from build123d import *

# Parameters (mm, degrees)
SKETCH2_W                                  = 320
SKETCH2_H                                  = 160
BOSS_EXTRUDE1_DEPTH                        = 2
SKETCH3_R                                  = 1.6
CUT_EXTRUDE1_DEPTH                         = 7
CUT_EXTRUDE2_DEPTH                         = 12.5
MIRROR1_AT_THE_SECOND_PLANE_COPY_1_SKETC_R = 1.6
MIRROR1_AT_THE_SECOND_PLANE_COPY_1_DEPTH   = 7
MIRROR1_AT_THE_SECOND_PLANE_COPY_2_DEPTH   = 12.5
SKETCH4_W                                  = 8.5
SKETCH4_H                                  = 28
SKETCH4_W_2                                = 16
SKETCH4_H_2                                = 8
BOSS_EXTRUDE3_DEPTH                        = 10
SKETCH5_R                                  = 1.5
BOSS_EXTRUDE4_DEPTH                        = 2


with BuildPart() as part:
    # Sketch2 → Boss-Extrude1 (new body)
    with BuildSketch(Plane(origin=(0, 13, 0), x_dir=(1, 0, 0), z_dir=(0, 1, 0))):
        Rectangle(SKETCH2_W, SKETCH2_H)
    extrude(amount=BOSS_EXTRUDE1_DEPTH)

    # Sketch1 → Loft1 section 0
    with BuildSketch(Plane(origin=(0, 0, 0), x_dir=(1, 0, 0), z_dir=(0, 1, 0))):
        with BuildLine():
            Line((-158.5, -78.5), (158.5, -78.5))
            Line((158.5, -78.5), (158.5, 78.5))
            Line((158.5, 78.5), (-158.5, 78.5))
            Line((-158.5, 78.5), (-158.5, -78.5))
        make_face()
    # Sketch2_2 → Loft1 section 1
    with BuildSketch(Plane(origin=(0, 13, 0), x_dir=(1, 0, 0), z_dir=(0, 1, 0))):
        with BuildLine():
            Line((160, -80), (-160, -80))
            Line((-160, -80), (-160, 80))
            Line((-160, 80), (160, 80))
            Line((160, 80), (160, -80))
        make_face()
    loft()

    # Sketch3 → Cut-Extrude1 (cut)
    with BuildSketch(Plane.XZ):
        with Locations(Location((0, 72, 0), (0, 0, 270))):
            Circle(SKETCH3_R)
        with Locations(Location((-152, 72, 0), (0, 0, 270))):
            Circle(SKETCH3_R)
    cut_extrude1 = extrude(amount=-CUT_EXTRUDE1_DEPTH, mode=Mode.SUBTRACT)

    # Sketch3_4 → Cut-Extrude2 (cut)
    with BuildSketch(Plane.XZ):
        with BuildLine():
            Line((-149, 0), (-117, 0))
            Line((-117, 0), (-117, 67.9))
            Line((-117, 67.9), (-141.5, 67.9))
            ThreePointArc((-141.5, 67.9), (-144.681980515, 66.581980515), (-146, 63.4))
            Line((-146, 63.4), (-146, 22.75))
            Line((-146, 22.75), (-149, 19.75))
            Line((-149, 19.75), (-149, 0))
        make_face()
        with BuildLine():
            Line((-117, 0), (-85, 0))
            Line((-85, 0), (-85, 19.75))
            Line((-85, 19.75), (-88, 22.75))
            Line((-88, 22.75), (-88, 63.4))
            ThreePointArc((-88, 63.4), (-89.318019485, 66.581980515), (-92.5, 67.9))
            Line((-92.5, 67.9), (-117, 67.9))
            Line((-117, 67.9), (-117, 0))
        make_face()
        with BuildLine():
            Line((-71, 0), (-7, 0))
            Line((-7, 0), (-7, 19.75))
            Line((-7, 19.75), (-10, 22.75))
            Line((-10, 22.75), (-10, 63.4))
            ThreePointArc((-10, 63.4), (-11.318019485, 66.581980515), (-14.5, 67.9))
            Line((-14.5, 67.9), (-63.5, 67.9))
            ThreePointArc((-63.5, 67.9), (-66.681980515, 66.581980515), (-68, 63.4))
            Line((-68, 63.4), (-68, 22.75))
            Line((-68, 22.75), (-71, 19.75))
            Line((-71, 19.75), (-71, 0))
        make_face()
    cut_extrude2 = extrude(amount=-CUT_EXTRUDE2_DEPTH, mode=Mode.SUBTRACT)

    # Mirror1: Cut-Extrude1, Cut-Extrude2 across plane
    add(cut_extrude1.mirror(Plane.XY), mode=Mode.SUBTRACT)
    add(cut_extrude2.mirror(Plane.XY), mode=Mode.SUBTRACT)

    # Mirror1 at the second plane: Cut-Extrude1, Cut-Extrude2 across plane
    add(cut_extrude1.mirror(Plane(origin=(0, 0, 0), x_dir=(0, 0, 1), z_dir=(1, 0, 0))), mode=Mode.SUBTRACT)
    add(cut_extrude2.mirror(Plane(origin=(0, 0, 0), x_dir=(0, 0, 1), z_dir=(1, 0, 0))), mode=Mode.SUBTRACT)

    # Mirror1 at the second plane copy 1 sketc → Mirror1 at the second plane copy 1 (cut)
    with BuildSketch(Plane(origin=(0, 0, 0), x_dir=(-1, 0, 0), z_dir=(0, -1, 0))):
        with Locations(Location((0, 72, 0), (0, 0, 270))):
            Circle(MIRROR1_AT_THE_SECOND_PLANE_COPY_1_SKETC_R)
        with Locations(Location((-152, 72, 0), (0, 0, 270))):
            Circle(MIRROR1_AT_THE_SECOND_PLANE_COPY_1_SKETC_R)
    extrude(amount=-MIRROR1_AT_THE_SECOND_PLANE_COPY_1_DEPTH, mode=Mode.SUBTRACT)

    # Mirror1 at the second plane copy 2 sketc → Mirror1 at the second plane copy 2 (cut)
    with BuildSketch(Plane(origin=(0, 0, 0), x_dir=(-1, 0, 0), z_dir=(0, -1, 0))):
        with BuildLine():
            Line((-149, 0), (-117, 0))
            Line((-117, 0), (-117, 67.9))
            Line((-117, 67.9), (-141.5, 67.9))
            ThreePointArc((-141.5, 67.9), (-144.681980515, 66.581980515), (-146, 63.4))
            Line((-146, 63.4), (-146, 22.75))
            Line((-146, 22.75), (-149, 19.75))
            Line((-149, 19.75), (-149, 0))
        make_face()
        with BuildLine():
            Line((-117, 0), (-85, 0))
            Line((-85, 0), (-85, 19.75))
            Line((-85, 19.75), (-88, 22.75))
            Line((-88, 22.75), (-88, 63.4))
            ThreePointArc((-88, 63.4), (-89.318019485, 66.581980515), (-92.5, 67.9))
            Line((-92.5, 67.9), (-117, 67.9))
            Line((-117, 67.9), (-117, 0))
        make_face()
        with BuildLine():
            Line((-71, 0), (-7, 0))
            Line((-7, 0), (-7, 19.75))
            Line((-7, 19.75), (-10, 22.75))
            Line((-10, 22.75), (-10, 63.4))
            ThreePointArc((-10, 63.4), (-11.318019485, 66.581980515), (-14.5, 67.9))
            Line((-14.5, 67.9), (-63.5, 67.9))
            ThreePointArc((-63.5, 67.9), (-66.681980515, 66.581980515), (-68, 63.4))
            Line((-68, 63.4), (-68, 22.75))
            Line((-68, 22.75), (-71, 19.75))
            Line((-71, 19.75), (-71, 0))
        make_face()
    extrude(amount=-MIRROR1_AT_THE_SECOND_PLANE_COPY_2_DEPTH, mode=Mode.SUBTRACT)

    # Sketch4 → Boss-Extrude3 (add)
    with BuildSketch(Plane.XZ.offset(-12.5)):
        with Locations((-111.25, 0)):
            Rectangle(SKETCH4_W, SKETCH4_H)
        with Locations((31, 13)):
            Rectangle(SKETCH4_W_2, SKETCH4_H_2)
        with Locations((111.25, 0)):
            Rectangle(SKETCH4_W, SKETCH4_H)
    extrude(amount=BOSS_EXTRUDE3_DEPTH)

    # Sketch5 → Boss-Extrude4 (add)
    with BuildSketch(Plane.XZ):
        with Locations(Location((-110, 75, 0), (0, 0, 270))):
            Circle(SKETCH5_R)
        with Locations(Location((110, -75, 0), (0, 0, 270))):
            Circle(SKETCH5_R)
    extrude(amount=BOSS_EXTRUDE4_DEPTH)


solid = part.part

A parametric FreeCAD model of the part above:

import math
import FreeCAD as App
import Part
import Sketcher

V = App.Vector


def add_polygon(sketch, points):
    """Adds a closed chain of lines whose ends are joined by coincident constraints."""
    first, n = sketch.GeometryCount, len(points)
    for a, b in zip(points, points[1:] + points[:1]):
        sketch.addGeometry(Part.LineSegment(App.Vector(*a, 0), App.Vector(*b, 0)), False)
    for i in range(n):
        sketch.addConstraint(Sketcher.Constraint("Coincident", first + i, 2, first + (i + 1) % n, 1))

doc = App.newDocument("Part")
body = doc.addObject("PartDesign::Body", "Body")

# Sketch on XZ plane
sketch1 = doc.addObject("Sketcher::SketchObject", "Sketch")
body.addObject(sketch1)
sketch1.AttachmentSupport = (doc.XZ_Plane, [""])
sketch1.MapMode = "FlatFace"
sketch1.AttachmentOffset = App.Placement(V(0, 0, -13), App.Rotation())
add_polygon(sketch1, [(-160, -80), (-160, 80), (160, 80), (160, -80)])  # lines 0-3
sketch1.addConstraint([
    Sketcher.Constraint("Vertical", 0),
    Sketcher.Constraint("Horizontal", 1),
    Sketcher.Constraint("Vertical", 2),
    Sketcher.Constraint("Horizontal", 3),
    Sketcher.Constraint("Symmetric", 0, 2, 2, 2, -1, 1),
    Sketcher.Constraint("DistanceX", 1, 1, 1, 2, 320.0),
    Sketcher.Constraint("DistanceY", 0, 1, 0, 2, 160.0),
])
pad1 = doc.addObject("PartDesign::Pad", "Pad")
body.addObject(pad1)
pad1.Profile = sketch1
pad1.Length = 2
pad1.Reversed = True

# Sketch on XZ plane
sketch2 = doc.addObject("Sketcher::SketchObject", "Sketch001")
body.addObject(sketch2)
sketch2.AttachmentSupport = (doc.XZ_Plane, [""])
sketch2.MapMode = "FlatFace"
add_polygon(sketch2, [(-158, 78), (158, 78), (158, -78), (-158, -78)])  # lines 0-3
sketch2.addConstraint([
    Sketcher.Constraint("Horizontal", 0),
    Sketcher.Constraint("Vertical", 1),
    Sketcher.Constraint("Horizontal", 2),
    Sketcher.Constraint("Vertical", 3),
    Sketcher.Constraint("Symmetric", 0, 2, 2, 2, -1, 1),
    Sketcher.Constraint("DistanceX", 0, 1, 0, 2, 317.0),
    Sketcher.Constraint("DistanceY", 1, 2, 1, 1, 157.0),
])

# Sketch on XZ plane
sketch3 = doc.addObject("Sketcher::SketchObject", "Sketch002")
body.addObject(sketch3)
sketch3.AttachmentSupport = (doc.XZ_Plane, [""])
sketch3.MapMode = "FlatFace"
sketch3.AttachmentOffset = App.Placement(V(0, 0, -13), App.Rotation())
add_polygon(sketch3, [(-160, 80), (160, 80), (160, -80), (-160, -80)])  # lines 0-3
sketch3.addConstraint([
    Sketcher.Constraint("Horizontal", 0),
    Sketcher.Constraint("Vertical", 1),
    Sketcher.Constraint("Horizontal", 2),
    Sketcher.Constraint("Vertical", 3),
    Sketcher.Constraint("Symmetric", 0, 2, 2, 2, -1, 1),
    Sketcher.Constraint("DistanceX", 0, 1, 0, 2, 320.0),
    Sketcher.Constraint("DistanceY", 1, 2, 1, 1, 160.0),
])

additiveloft = doc.addObject("PartDesign::AdditiveLoft", "AdditiveLoft")
body.addObject(additiveloft)
additiveloft.Profile = sketch2
additiveloft.Sections = [sketch3]

# Sketch on XZ plane
sketch4 = doc.addObject("Sketcher::SketchObject", "Sketch003")
body.addObject(sketch4)
sketch4.AttachmentSupport = (doc.XZ_Plane, [""])
sketch4.MapMode = "FlatFace"
sketch4.addGeometry([
    Part.Circle(V(0, 72, 0), V(0, 0, 1), 1.6),
    Part.Circle(V(-152, 72, 0), V(0, 0, 1), 1.6),
], False)
sketch4.addConstraint([
    Sketcher.Constraint("Equal", 0, 1),
    Sketcher.Constraint("PointOnObject", 0, 3, -2),
    Sketcher.Constraint("Horizontal", 0, 3, 1, 3),
    Sketcher.Constraint("Diameter", 0, 3.2),
    Sketcher.Constraint("DistanceY", -1, 1, 0, 3, 72.0),
    Sketcher.Constraint("DistanceX", 1, 3, -1, 1, 152.0),
])
pocket1 = doc.addObject("PartDesign::Pocket", "Pocket")
body.addObject(pocket1)
pocket1.Profile = sketch4
pocket1.Length = 7

# Sketch on XZ plane
sketch5 = doc.addObject("Sketcher::SketchObject", "Sketch004")
body.addObject(sketch5)
sketch5.AttachmentSupport = (doc.XZ_Plane, [""])
sketch5.MapMode = "FlatFace"
sketch5.addGeometry([
    Part.LineSegment(V(-149, 0, 0), V(-85, 0, 0)),  # 0
    Part.LineSegment(V(-85, 0, 0), V(-85, 19.8, 0)),  # 1
    Part.LineSegment(V(-85, 19.8, 0), V(-88, 22.8, 0)),  # 2
    Part.LineSegment(V(-88, 22.8, 0), V(-88, 63.4, 0)),  # 3
    Part.ArcOfCircle(Part.Circle(V(-92.5, 63.4, 0), V(0, 0, 1), 4.5), math.radians(0), math.radians(90)),  # 4
    Part.LineSegment(V(-92.5, 67.9, 0), V(-141.5, 67.9, 0)),  # 5
    Part.ArcOfCircle(Part.Circle(V(-141.5, 63.4, 0), V(0, 0, 1), 4.5), math.radians(90), math.radians(180)),  # 6
    Part.LineSegment(V(-146, 63.4, 0), V(-146, 22.8, 0)),  # 7
    Part.LineSegment(V(-146, 22.8, 0), V(-149, 19.8, 0)),  # 8
    Part.LineSegment(V(-149, 19.8, 0), V(-149, 0, 0)),  # 9
    Part.LineSegment(V(-71, 0, 0), V(-7, 0, 0)),  # 10
    Part.LineSegment(V(-7, 0, 0), V(-7, 19.8, 0)),  # 11
    Part.LineSegment(V(-7, 19.8, 0), V(-10, 22.8, 0)),  # 12
    Part.LineSegment(V(-10, 22.8, 0), V(-10, 63.4, 0)),  # 13
    Part.ArcOfCircle(Part.Circle(V(-14.5, 63.4, 0), V(0, 0, 1), 4.5), math.radians(0), math.radians(90)),  # 14
    Part.LineSegment(V(-14.5, 67.9, 0), V(-63.5, 67.9, 0)),  # 15
    Part.ArcOfCircle(Part.Circle(V(-63.5, 63.4, 0), V(0, 0, 1), 4.5), math.radians(90), math.radians(180)),  # 16
    Part.LineSegment(V(-68, 63.4, 0), V(-68, 22.8, 0)),  # 17
    Part.LineSegment(V(-68, 22.8, 0), V(-71, 19.8, 0)),  # 18
    Part.LineSegment(V(-71, 19.8, 0), V(-71, 0, 0)),  # 19
], False)
sketch5.addConstraint([
    Sketcher.Constraint("Coincident", 0, 2, 1, 1),
    Sketcher.Constraint("Coincident", 1, 2, 2, 1),
    Sketcher.Constraint("Coincident", 2, 2, 3, 1),
    Sketcher.Constraint("Tangent", 3, 2, 4, 1),
    Sketcher.Constraint("Tangent", 4, 2, 5, 1),
    Sketcher.Constraint("Tangent", 5, 2, 6, 1),
    Sketcher.Constraint("Tangent", 6, 2, 7, 1),
    Sketcher.Constraint("Coincident", 7, 2, 8, 1),
    Sketcher.Constraint("Coincident", 8, 2, 9, 1),
    Sketcher.Constraint("Coincident", 9, 2, 0, 1),
    Sketcher.Constraint("Coincident", 10, 2, 11, 1),
    Sketcher.Constraint("Coincident", 11, 2, 12, 1),
    Sketcher.Constraint("Coincident", 12, 2, 13, 1),
    Sketcher.Constraint("Tangent", 13, 2, 14, 1),
    Sketcher.Constraint("Tangent", 14, 2, 15, 1),
    Sketcher.Constraint("Tangent", 15, 2, 16, 1),
    Sketcher.Constraint("Tangent", 16, 2, 17, 1),
    Sketcher.Constraint("Coincident", 17, 2, 18, 1),
    Sketcher.Constraint("Coincident", 18, 2, 19, 1),
    Sketcher.Constraint("Coincident", 19, 2, 10, 1),
    Sketcher.Constraint("Horizontal", 0),
    Sketcher.Constraint("Vertical", 1),
    Sketcher.Constraint("Vertical", 3),
    Sketcher.Constraint("Horizontal", 5),
    Sketcher.Constraint("Vertical", 7),
    Sketcher.Constraint("Vertical", 9),
    Sketcher.Constraint("Horizontal", 10),
    Sketcher.Constraint("Vertical", 11),
    Sketcher.Constraint("Vertical", 13),
    Sketcher.Constraint("Horizontal", 15),
    Sketcher.Constraint("Vertical", 17),
    Sketcher.Constraint("Vertical", 19),
    Sketcher.Constraint("Equal", 4, 6),
    Sketcher.Constraint("Equal", 6, 14),
    Sketcher.Constraint("Equal", 14, 16),
    Sketcher.Constraint("PointOnObject", 0, 2, -1),
    Sketcher.Constraint("PointOnObject", 10, 2, -1),
    Sketcher.Constraint("Perpendicular", 2, 8),
    Sketcher.Constraint("Perpendicular", 8, 12),
    Sketcher.Constraint("Perpendicular", 12, 18),
    Sketcher.Constraint("Horizontal", 6, 3, 14, 3),
    Sketcher.Constraint("Horizontal", 2, 2, 7, 2),
    Sketcher.Constraint("Horizontal", 1, 2, 8, 2),
    Sketcher.Constraint("Horizontal", 8, 2, 11, 2),
    Sketcher.Constraint("Horizontal", 7, 2, 12, 2),
    Sketcher.Constraint("Horizontal", 12, 2, 17, 2),
    Sketcher.Constraint("Horizontal", 11, 2, 18, 2),
    Sketcher.Constraint("Equal", 0, 10),
    Sketcher.Constraint("Equal", 2, 8),
    Sketcher.Constraint("Radius", 4, 4.5),
    Sketcher.Constraint("DistanceX", 0, 1, 0, 2, 64.0),
    Sketcher.Constraint("DistanceX", 5, 2, 5, 1, 49.0),
    Sketcher.Constraint("DistanceX", 0, 2, -1, 1, 85.0),
    Sketcher.Constraint("DistanceX", 10, 2, -1, 1, 7.0),
    Sketcher.Constraint("DistanceY", 1, 1, 1, 2, 19.75),
    Sketcher.Constraint("DistanceY", 3, 1, 3, 2, 40.65),
])
pocket2 = doc.addObject("PartDesign::Pocket", "Pocket001")
body.addObject(pocket2)
pocket2.Profile = sketch5
pocket2.Length = 12.5
doc.recompute()

mirrored = doc.addObject("PartDesign::Mirrored", "Mirrored")
body.addObject(mirrored)
mirrored.Originals = [pocket1, pocket2]
mirrored.MirrorPlane = (doc.XY_Plane, [""])
body.Tip = mirrored
doc.recompute()

mirrored2 = doc.addObject("PartDesign::Mirrored", "Mirrored001")
body.addObject(mirrored2)
mirrored2.Originals = [pocket1, pocket2]
mirrored2.MirrorPlane = (doc.YZ_Plane, [""])
body.Tip = mirrored2

# Sketch on XZ plane
sketch6 = doc.addObject("Sketcher::SketchObject", "Sketch005")
body.addObject(sketch6)
sketch6.AttachmentSupport = (doc.XZ_Plane, [""])
sketch6.MapMode = "FlatFace"
sketch6.addGeometry([
    Part.Circle(V(0, -72, 0), V(0, 0, 1), 1.6),
    Part.Circle(V(152, -72, 0), V(0, 0, 1), 1.6),
], False)
sketch6.addConstraint([
    Sketcher.Constraint("Equal", 0, 1),
    Sketcher.Constraint("PointOnObject", 0, 3, -2),
    Sketcher.Constraint("Horizontal", 0, 3, 1, 3),
    Sketcher.Constraint("Diameter", 0, 3.2),
    Sketcher.Constraint("DistanceY", 0, 3, -1, 1, 72.0),
    Sketcher.Constraint("DistanceX", -1, 1, 1, 3, 152.0),
])
pocket3 = doc.addObject("PartDesign::Pocket", "Pocket002")
body.addObject(pocket3)
pocket3.Profile = sketch6
pocket3.Length = 7

# Sketch on XZ plane
sketch7 = doc.addObject("Sketcher::SketchObject", "Sketch006")
body.addObject(sketch7)
sketch7.AttachmentSupport = (doc.XZ_Plane, [""])
sketch7.MapMode = "FlatFace"
sketch7.addGeometry([
    Part.LineSegment(V(149, 0, 0), V(85, 0, 0)),  # 0
    Part.LineSegment(V(85, 0, 0), V(85, -19.8, 0)),  # 1
    Part.LineSegment(V(85, -19.8, 0), V(88, -22.8, 0)),  # 2
    Part.LineSegment(V(88, -22.8, 0), V(88, -63.4, 0)),  # 3
    Part.ArcOfCircle(Part.Circle(V(92.5, -63.4, 0), V(0, 0, 1), 4.5), math.radians(-180), math.radians(-90)),  # 4
    Part.LineSegment(V(92.5, -67.9, 0), V(141.5, -67.9, 0)),  # 5
    Part.ArcOfCircle(Part.Circle(V(141.5, -63.4, 0), V(0, 0, 1), 4.5), math.radians(-90), math.radians(0)),  # 6
    Part.LineSegment(V(146, -63.4, 0), V(146, -22.8, 0)),  # 7
    Part.LineSegment(V(146, -22.8, 0), V(149, -19.8, 0)),  # 8
    Part.LineSegment(V(149, -19.8, 0), V(149, 0, 0)),  # 9
    Part.LineSegment(V(71, 0, 0), V(7, 0, 0)),  # 10
    Part.LineSegment(V(7, 0, 0), V(7, -19.8, 0)),  # 11
    Part.LineSegment(V(7, -19.8, 0), V(10, -22.8, 0)),  # 12
    Part.LineSegment(V(10, -22.8, 0), V(10, -63.4, 0)),  # 13
    Part.ArcOfCircle(Part.Circle(V(14.5, -63.4, 0), V(0, 0, 1), 4.5), math.radians(-180), math.radians(-90)),  # 14
    Part.LineSegment(V(14.5, -67.9, 0), V(63.5, -67.9, 0)),  # 15
    Part.ArcOfCircle(Part.Circle(V(63.5, -63.4, 0), V(0, 0, 1), 4.5), math.radians(-90), math.radians(0)),  # 16
    Part.LineSegment(V(68, -63.4, 0), V(68, -22.8, 0)),  # 17
    Part.LineSegment(V(68, -22.8, 0), V(71, -19.8, 0)),  # 18
    Part.LineSegment(V(71, -19.8, 0), V(71, 0, 0)),  # 19
], False)
sketch7.addConstraint([
    Sketcher.Constraint("Coincident", 0, 2, 1, 1),
    Sketcher.Constraint("Coincident", 1, 2, 2, 1),
    Sketcher.Constraint("Coincident", 2, 2, 3, 1),
    Sketcher.Constraint("Tangent", 3, 2, 4, 1),
    Sketcher.Constraint("Tangent", 4, 2, 5, 1),
    Sketcher.Constraint("Tangent", 5, 2, 6, 1),
    Sketcher.Constraint("Tangent", 6, 2, 7, 1),
    Sketcher.Constraint("Coincident", 7, 2, 8, 1),
    Sketcher.Constraint("Coincident", 8, 2, 9, 1),
    Sketcher.Constraint("Coincident", 9, 2, 0, 1),
    Sketcher.Constraint("Coincident", 10, 2, 11, 1),
    Sketcher.Constraint("Coincident", 11, 2, 12, 1),
    Sketcher.Constraint("Coincident", 12, 2, 13, 1),
    Sketcher.Constraint("Tangent", 13, 2, 14, 1),
    Sketcher.Constraint("Tangent", 14, 2, 15, 1),
    Sketcher.Constraint("Tangent", 15, 2, 16, 1),
    Sketcher.Constraint("Tangent", 16, 2, 17, 1),
    Sketcher.Constraint("Coincident", 17, 2, 18, 1),
    Sketcher.Constraint("Coincident", 18, 2, 19, 1),
    Sketcher.Constraint("Coincident", 19, 2, 10, 1),
    Sketcher.Constraint("Horizontal", 0),
    Sketcher.Constraint("Vertical", 1),
    Sketcher.Constraint("Vertical", 3),
    Sketcher.Constraint("Horizontal", 5),
    Sketcher.Constraint("Vertical", 7),
    Sketcher.Constraint("Vertical", 9),
    Sketcher.Constraint("Horizontal", 10),
    Sketcher.Constraint("Vertical", 11),
    Sketcher.Constraint("Vertical", 13),
    Sketcher.Constraint("Horizontal", 15),
    Sketcher.Constraint("Vertical", 17),
    Sketcher.Constraint("Vertical", 19),
    Sketcher.Constraint("Equal", 4, 6),
    Sketcher.Constraint("Equal", 6, 14),
    Sketcher.Constraint("Equal", 14, 16),
    Sketcher.Constraint("PointOnObject", 0, 2, -1),
    Sketcher.Constraint("PointOnObject", 10, 2, -1),
    Sketcher.Constraint("Perpendicular", 2, 8),
    Sketcher.Constraint("Perpendicular", 8, 12),
    Sketcher.Constraint("Perpendicular", 12, 18),
    Sketcher.Constraint("Horizontal", 6, 3, 14, 3),
    Sketcher.Constraint("Horizontal", 2, 2, 7, 2),
    Sketcher.Constraint("Horizontal", 1, 2, 8, 2),
    Sketcher.Constraint("Horizontal", 8, 2, 11, 2),
    Sketcher.Constraint("Horizontal", 7, 2, 12, 2),
    Sketcher.Constraint("Horizontal", 12, 2, 17, 2),
    Sketcher.Constraint("Horizontal", 11, 2, 18, 2),
    Sketcher.Constraint("Equal", 0, 10),
    Sketcher.Constraint("Equal", 2, 8),
    Sketcher.Constraint("Radius", 4, 4.5),
    Sketcher.Constraint("DistanceX", 0, 2, 0, 1, 64.0),
    Sketcher.Constraint("DistanceX", 5, 1, 5, 2, 49.0),
    Sketcher.Constraint("DistanceX", -1, 1, 0, 2, 85.0),
    Sketcher.Constraint("DistanceX", -1, 1, 10, 2, 7.0),
    Sketcher.Constraint("DistanceY", 1, 2, 1, 1, 19.75),
    Sketcher.Constraint("DistanceY", 3, 2, 3, 1, 40.65),
])
pocket4 = doc.addObject("PartDesign::Pocket", "Pocket003")
body.addObject(pocket4)
pocket4.Profile = sketch7
pocket4.Length = 12.5

# Sketch on XZ plane
sketch8 = doc.addObject("Sketcher::SketchObject", "Sketch007")
body.addObject(sketch8)
sketch8.AttachmentSupport = (doc.XZ_Plane, [""])
sketch8.MapMode = "FlatFace"
sketch8.AttachmentOffset = App.Placement(V(0, 0, -12.5), App.Rotation())
add_polygon(sketch8, [(-116, 14), (-116, -14), (-107, -14), (-107, 14)])  # lines 0-3
add_polygon(sketch8, [(23, 17), (23, 9), (39, 9), (39, 17)])  # lines 4-7
add_polygon(sketch8, [(107, 14), (107, -14), (116, -14), (116, 14)])  # lines 8-11
sketch8.addConstraint([
    Sketcher.Constraint("Vertical", 0),
    Sketcher.Constraint("Horizontal", 1),
    Sketcher.Constraint("Vertical", 2),
    Sketcher.Constraint("Horizontal", 3),
    Sketcher.Constraint("Vertical", 4),
    Sketcher.Constraint("Horizontal", 5),
    Sketcher.Constraint("Vertical", 6),
    Sketcher.Constraint("Horizontal", 7),
    Sketcher.Constraint("Vertical", 8),
    Sketcher.Constraint("Horizontal", 9),
    Sketcher.Constraint("Vertical", 10),
    Sketcher.Constraint("Horizontal", 11),
    Sketcher.Constraint("Symmetric", 2, 2, 8, 2, -1, 1),
    Sketcher.Constraint("Symmetric", 0, 2, 10, 2, -1, 1),
    Sketcher.Constraint("Horizontal", 1, 2, 8, 2),
    Sketcher.Constraint("DistanceX", 5, 1, 5, 2, 16.0),
    Sketcher.Constraint("DistanceY", 0, 2, 0, 1, 28.0),
    Sketcher.Constraint("DistanceY", 4, 2, 4, 1, 8.0),
    Sketcher.Constraint("DistanceX", 1, 1, 1, 2, 8.5),
    Sketcher.Constraint("DistanceX", 1, 2, -1, 1, 107.0),
    Sketcher.Constraint("DistanceX", -1, 1, 4, 2, 23.0),
    Sketcher.Constraint("DistanceY", -1, 1, 4, 2, 9.0),
])
pad2 = doc.addObject("PartDesign::Pad", "Pad001")
body.addObject(pad2)
pad2.Profile = sketch8
pad2.Length = 10

# Sketch on XZ plane
sketch9 = doc.addObject("Sketcher::SketchObject", "Sketch008")
body.addObject(sketch9)
sketch9.AttachmentSupport = (doc.XZ_Plane, [""])
sketch9.MapMode = "FlatFace"
sketch9.addGeometry([
    Part.Circle(V(-110, 75, 0), V(0, 0, 1), 1.5),
    Part.Circle(V(110, -75, 0), V(0, 0, 1), 1.5),
], False)
sketch9.addConstraint([
    Sketcher.Constraint("Equal", 0, 1),
    Sketcher.Constraint("Symmetric", 0, 3, 1, 3, -1, 1),
    Sketcher.Constraint("Diameter", 0, 3.0),
    Sketcher.Constraint("DistanceX", 0, 3, -1, 1, 110.0),
    Sketcher.Constraint("DistanceY", -1, 1, 0, 3, 75.0),
])
pad3 = doc.addObject("PartDesign::Pad", "Pad002")
body.addObject(pad3)
pad3.Profile = sketch9
pad3.Length = 2

doc.recompute()
